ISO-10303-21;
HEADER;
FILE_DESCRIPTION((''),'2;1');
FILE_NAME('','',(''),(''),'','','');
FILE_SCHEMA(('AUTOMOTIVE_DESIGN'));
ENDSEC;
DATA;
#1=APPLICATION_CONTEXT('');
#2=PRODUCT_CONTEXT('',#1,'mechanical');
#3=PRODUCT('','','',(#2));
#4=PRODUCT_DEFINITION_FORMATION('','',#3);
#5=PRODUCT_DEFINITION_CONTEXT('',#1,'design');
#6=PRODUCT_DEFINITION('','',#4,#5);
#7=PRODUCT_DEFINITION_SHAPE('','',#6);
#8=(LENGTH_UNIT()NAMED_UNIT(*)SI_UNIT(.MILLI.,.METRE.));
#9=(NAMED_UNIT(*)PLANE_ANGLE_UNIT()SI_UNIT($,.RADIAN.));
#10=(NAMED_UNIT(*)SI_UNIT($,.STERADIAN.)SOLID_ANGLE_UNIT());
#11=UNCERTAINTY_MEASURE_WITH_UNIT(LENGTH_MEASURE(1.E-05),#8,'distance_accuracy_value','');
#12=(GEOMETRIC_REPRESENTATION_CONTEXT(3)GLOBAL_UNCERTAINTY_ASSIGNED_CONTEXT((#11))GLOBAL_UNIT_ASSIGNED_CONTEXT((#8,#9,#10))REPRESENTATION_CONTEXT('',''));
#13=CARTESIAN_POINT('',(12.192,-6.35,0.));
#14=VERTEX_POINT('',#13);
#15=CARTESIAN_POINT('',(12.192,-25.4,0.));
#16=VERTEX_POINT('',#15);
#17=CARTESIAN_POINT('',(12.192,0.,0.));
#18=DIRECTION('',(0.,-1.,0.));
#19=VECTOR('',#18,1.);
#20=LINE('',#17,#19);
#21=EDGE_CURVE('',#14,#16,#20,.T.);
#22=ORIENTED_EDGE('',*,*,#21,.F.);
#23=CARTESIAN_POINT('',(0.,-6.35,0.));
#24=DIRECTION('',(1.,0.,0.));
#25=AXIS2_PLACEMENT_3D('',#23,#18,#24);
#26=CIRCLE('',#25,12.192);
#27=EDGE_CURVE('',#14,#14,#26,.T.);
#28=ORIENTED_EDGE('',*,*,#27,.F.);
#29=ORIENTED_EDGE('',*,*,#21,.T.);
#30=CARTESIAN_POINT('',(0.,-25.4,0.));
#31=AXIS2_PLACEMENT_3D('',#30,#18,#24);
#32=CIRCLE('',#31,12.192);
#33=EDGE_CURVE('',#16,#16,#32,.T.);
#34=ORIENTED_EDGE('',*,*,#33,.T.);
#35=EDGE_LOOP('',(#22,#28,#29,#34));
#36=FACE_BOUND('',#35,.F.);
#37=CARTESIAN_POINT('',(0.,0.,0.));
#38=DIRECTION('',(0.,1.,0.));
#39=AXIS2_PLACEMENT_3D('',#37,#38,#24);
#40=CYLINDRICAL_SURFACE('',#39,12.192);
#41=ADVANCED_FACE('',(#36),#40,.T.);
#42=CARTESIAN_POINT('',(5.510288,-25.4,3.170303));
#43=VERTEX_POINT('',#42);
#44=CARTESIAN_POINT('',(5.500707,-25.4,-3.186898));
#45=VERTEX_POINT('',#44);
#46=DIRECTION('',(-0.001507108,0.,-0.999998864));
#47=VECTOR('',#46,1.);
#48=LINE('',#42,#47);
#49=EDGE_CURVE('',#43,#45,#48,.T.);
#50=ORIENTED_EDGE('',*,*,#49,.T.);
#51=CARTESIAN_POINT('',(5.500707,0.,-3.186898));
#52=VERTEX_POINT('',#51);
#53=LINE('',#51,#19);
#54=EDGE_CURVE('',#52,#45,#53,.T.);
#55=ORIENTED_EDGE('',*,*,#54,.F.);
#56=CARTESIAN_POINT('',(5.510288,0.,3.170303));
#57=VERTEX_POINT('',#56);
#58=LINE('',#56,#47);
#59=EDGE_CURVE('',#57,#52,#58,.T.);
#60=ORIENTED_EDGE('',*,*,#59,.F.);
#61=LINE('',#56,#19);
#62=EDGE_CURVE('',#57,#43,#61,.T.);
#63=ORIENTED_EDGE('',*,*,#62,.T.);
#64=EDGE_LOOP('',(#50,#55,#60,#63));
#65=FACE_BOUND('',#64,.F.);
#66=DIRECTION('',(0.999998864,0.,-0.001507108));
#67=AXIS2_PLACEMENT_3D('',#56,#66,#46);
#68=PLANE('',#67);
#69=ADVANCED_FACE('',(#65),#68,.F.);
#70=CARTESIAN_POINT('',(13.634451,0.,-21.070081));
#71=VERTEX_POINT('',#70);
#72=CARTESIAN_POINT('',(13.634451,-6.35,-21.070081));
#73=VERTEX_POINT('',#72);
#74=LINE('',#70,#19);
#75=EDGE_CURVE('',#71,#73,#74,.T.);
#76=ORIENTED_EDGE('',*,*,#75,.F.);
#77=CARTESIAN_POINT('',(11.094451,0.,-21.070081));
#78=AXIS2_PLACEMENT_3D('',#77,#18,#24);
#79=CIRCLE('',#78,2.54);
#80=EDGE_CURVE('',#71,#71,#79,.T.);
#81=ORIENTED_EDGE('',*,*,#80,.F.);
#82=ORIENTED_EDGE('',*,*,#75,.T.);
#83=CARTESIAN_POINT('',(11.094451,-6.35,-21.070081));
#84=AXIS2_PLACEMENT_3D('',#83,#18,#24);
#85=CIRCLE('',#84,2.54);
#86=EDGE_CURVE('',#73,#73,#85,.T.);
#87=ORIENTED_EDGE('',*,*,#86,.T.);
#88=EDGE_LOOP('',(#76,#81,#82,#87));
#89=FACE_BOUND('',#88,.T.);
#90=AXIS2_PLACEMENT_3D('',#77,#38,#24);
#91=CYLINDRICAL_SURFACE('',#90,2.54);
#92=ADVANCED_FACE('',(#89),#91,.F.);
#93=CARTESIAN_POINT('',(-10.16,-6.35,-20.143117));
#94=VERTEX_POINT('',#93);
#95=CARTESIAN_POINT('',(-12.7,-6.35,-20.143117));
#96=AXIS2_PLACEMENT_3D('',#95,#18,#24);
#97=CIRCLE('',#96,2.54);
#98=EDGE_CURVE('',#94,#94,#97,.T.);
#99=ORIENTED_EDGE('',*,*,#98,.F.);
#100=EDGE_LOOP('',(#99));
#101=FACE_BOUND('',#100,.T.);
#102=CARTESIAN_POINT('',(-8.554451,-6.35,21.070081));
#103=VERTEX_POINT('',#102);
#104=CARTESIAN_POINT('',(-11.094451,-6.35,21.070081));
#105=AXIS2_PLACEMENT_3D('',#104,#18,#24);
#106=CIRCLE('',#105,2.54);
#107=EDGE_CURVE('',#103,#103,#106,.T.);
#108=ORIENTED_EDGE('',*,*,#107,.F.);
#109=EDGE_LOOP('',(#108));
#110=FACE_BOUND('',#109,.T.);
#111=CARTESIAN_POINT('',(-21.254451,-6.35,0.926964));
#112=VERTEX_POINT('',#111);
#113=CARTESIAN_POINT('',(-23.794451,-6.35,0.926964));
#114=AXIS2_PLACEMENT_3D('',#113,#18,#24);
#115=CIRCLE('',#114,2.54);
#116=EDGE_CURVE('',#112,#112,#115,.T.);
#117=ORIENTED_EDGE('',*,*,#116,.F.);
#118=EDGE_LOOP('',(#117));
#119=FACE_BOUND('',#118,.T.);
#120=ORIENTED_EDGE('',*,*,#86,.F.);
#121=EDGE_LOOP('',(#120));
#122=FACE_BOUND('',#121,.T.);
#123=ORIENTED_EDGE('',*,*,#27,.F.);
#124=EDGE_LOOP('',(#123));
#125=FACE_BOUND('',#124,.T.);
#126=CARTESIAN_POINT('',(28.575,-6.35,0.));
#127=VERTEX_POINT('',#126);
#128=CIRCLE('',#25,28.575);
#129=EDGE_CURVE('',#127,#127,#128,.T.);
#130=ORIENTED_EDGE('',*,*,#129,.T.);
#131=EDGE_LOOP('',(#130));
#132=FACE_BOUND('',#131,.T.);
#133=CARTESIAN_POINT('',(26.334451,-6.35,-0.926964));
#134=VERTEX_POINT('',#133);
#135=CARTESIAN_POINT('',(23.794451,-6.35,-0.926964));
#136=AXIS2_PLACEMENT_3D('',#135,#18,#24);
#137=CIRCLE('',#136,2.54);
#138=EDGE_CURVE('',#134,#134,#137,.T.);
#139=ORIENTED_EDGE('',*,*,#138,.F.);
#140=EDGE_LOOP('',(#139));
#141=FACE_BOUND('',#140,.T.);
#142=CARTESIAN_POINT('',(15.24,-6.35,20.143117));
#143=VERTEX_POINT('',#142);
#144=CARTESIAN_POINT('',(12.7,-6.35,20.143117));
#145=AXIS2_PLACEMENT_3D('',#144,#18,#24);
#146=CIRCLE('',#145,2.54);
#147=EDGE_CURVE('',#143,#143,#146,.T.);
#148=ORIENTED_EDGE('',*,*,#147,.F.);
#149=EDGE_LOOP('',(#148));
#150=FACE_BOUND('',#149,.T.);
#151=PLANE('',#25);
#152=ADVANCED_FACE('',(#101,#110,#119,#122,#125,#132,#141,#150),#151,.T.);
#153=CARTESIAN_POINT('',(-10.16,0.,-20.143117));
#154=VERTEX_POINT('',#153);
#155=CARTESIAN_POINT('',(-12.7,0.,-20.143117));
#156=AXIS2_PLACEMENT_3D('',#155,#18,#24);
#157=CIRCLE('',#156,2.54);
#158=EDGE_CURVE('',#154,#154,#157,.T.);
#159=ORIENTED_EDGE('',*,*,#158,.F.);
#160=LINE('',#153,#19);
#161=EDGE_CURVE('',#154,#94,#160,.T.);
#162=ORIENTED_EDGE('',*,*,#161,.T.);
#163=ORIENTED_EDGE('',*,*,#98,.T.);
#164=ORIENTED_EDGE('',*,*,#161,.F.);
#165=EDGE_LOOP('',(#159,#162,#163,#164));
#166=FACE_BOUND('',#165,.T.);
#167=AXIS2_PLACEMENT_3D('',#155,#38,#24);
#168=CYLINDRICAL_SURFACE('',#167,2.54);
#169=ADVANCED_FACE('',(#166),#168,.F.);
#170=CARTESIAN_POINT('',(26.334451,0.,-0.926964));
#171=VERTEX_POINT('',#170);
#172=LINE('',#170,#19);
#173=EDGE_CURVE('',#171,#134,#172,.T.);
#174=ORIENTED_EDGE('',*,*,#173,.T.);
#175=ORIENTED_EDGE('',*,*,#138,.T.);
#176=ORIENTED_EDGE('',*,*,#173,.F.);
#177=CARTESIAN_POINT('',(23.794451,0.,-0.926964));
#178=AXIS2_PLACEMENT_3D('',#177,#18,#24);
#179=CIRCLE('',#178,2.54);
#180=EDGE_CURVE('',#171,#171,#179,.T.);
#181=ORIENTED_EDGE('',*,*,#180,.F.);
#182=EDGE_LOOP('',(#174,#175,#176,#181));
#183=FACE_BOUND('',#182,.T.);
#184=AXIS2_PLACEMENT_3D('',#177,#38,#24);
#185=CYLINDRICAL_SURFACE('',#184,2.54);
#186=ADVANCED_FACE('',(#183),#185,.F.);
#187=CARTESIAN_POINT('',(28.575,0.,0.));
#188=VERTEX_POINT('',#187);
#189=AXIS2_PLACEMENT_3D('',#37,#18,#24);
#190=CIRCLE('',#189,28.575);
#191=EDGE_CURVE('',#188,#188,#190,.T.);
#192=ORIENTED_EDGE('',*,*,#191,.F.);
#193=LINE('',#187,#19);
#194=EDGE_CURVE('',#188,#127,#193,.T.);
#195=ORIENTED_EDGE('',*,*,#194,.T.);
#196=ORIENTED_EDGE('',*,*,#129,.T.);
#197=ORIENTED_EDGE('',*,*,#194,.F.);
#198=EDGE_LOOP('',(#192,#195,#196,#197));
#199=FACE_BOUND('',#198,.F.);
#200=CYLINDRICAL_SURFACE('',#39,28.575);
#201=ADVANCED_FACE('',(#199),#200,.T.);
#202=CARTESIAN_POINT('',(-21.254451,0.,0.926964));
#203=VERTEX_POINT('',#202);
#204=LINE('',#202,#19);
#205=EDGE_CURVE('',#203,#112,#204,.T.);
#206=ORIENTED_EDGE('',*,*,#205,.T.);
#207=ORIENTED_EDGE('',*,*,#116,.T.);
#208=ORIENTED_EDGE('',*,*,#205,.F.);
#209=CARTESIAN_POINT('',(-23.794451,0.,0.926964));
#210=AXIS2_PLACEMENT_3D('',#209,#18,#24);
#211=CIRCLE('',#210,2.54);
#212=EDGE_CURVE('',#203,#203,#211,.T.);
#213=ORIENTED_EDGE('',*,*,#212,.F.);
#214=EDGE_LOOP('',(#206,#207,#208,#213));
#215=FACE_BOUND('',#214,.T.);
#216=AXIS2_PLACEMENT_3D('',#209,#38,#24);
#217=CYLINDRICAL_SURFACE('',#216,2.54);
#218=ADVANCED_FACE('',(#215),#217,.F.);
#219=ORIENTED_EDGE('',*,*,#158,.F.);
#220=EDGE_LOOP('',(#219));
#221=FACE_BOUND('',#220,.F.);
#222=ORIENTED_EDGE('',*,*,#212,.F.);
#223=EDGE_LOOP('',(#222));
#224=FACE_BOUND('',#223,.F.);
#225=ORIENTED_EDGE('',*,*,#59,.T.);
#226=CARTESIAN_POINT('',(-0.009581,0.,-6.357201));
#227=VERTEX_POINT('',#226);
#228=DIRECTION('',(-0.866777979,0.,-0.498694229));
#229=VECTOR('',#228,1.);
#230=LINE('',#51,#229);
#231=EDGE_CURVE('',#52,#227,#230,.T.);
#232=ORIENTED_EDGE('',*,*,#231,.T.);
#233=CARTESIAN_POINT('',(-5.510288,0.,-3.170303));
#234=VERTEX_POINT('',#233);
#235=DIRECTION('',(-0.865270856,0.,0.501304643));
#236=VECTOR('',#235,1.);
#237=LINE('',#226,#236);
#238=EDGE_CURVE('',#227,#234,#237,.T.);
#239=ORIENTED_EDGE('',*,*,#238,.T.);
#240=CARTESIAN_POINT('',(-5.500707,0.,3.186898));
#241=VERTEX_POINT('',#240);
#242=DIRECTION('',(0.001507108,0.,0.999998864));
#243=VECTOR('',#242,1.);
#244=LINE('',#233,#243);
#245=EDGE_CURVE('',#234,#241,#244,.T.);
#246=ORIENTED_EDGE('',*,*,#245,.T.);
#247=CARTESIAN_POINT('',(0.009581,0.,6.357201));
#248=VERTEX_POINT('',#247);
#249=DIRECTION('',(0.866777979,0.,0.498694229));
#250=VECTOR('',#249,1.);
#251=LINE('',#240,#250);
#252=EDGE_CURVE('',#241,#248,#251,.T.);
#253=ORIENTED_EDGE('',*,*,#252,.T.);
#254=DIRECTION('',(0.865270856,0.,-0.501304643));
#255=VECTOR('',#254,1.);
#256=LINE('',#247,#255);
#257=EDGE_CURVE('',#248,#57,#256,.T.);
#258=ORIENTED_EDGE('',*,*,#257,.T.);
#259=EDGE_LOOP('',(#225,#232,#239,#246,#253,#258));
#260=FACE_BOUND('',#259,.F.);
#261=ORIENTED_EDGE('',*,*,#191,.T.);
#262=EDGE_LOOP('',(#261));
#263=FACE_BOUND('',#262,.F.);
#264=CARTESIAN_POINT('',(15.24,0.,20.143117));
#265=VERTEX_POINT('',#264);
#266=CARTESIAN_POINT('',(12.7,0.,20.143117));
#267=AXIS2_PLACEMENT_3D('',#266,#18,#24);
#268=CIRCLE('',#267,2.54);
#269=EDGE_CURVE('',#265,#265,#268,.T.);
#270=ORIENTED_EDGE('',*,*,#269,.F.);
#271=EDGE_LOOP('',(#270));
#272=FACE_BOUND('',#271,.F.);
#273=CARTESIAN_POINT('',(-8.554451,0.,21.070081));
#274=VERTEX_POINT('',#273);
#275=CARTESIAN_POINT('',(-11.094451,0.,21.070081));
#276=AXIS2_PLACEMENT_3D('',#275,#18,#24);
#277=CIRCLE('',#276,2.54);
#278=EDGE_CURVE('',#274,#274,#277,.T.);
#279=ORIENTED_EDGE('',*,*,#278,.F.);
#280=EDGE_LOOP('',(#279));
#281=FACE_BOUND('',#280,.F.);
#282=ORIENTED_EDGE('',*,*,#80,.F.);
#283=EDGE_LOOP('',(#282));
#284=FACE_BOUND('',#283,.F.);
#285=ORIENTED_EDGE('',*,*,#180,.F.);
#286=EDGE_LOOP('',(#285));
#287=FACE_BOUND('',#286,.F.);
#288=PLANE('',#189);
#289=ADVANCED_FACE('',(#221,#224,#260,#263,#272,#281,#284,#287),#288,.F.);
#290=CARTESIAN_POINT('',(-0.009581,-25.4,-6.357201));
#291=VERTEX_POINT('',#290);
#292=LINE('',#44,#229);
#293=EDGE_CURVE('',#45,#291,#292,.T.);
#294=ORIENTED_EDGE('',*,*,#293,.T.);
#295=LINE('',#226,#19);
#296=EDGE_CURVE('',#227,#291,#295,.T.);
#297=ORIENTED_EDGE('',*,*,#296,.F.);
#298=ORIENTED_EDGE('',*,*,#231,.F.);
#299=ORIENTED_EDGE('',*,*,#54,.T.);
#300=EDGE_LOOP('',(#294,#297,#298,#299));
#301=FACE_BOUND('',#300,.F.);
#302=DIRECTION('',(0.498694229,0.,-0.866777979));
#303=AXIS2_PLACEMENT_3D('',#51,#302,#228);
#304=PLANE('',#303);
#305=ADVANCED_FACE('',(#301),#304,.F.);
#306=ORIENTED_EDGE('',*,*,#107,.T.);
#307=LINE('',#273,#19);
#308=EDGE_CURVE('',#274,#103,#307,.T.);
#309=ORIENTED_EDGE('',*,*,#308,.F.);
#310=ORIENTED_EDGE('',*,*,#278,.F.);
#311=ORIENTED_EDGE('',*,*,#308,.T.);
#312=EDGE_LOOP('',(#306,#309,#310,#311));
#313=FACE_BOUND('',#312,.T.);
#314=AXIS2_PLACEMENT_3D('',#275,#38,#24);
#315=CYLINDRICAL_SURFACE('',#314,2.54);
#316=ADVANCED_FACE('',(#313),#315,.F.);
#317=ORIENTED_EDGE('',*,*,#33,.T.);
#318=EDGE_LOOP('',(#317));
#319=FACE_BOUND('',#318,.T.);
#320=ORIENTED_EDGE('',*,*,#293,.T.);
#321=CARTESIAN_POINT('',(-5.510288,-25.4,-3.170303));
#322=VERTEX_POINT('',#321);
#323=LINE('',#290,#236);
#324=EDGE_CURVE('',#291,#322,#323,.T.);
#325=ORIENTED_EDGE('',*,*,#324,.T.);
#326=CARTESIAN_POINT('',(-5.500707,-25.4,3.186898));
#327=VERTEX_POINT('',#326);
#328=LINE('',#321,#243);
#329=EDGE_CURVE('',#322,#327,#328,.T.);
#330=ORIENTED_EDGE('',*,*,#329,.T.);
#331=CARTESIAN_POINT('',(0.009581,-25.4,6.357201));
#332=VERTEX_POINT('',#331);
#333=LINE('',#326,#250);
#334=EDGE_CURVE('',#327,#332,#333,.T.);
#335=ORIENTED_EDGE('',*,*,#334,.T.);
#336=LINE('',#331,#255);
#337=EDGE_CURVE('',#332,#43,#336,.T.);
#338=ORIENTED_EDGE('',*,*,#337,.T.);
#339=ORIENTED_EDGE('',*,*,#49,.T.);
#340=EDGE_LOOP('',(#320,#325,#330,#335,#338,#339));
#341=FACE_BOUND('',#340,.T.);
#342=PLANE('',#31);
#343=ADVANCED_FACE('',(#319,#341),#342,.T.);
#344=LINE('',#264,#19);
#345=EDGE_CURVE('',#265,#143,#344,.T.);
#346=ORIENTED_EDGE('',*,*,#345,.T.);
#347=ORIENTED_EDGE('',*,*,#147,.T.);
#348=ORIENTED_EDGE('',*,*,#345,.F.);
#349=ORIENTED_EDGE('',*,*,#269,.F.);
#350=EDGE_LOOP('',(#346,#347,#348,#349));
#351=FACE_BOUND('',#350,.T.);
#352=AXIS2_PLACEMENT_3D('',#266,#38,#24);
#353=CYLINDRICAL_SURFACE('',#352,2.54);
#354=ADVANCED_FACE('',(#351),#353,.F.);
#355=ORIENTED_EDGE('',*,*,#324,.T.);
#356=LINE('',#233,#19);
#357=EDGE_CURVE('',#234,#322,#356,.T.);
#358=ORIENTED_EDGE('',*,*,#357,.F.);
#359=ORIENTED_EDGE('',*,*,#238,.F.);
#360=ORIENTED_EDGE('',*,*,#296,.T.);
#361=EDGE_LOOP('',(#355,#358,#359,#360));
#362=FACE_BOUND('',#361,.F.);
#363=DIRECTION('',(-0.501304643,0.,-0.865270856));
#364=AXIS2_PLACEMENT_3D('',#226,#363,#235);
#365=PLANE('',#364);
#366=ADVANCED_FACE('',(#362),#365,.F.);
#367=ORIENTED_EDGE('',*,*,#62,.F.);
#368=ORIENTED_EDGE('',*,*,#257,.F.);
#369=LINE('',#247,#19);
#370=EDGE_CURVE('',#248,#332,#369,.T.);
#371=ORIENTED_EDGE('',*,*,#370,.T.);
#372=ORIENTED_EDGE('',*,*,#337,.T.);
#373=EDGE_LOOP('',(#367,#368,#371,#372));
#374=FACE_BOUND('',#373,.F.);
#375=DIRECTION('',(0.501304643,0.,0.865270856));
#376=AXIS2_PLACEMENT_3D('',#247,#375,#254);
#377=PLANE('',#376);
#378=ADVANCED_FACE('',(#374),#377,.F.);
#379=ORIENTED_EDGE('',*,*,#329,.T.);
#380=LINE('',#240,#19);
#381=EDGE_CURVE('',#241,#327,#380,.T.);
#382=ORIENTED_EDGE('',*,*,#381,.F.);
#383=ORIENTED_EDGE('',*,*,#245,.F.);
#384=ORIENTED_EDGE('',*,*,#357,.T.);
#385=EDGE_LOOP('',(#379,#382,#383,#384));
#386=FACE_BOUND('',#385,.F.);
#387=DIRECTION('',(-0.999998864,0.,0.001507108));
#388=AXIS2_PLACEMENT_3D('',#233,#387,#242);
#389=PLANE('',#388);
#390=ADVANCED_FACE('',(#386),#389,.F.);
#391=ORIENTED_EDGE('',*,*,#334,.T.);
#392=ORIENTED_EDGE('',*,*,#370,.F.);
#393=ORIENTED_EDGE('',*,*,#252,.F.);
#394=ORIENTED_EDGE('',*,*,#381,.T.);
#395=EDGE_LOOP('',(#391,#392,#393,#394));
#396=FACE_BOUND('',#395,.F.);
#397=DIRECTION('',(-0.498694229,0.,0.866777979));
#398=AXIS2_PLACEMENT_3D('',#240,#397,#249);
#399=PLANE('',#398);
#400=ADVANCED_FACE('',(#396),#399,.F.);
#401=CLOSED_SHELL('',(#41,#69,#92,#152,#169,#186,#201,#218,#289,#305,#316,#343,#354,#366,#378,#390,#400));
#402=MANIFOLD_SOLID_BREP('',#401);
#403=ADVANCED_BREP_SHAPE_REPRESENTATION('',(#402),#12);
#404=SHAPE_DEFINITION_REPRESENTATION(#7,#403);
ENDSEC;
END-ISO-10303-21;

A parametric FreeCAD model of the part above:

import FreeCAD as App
import Part
import Sketcher

V = App.Vector
Q = App.Units.Quantity

doc = App.newDocument("Part")
body = doc.addObject("PartDesign::Body", "Body")

# Sketch on XZ plane
sketch1 = doc.addObject("Sketcher::SketchObject", "Sketch")
body.addObject(sketch1)
sketch1.AttachmentSupport = (doc.XZ_Plane, [""])
sketch1.MapMode = "FlatFace"
sketch1.addGeometry(Part.Circle(V(0, 0, 0), V(0, 0, 1), 28.6), False)
sketch1.addGeometry(Part.Circle(V(-12.7, -20.1, 0), V(0, 0, 1), 2.5), False)
sketch1.addGeometry(Part.Circle(V(11.1, -21.1, 0), V(0, 0, 1), 2.5), False)
sketch1.addGeometry(Part.Circle(V(23.8, -0.9, 0), V(0, 0, 1), 2.5), False)
sketch1.addGeometry(Part.Circle(V(-23.8, 0.9, 0), V(0, 0, 1), 2.5), False)
sketch1.addGeometry(Part.Circle(V(-11.1, 21.1, 0), V(0, 0, 1), 2.5), False)
sketch1.addGeometry(Part.Circle(V(0, 0, 0), V(0, 0, 1), 12.2), False)
sketch1.addGeometry(Part.Circle(V(12.7, 20.1, 0), V(0, 0, 1), 2.5), False)
sketch1.addConstraint(Sketcher.Constraint("Coincident", 0, 3, -1, 1))
sketch1.addConstraint(Sketcher.Constraint("Coincident", 6, 3, -1, 1))
sketch1.addConstraint(Sketcher.Constraint("Equal", 1, 2))
sketch1.addConstraint(Sketcher.Constraint("Equal", 2, 3))
sketch1.addConstraint(Sketcher.Constraint("Equal", 3, 4))
sketch1.addConstraint(Sketcher.Constraint("Equal", 4, 5))
sketch1.addConstraint(Sketcher.Constraint("Equal", 5, 7))
sketch1.addConstraint(Sketcher.Constraint("Symmetric", 3, 3, 4, 3, -1, 1))
sketch1.addConstraint(Sketcher.Constraint("Symmetric", 2, 3, 5, 3, -1, 1))
sketch1.addConstraint(Sketcher.Constraint("Symmetric", 1, 3, 7, 3, -1, 1))
sketch1.addConstraint(Sketcher.Constraint("Diameter", 1, Q("0.2 in")))
sketch1.addConstraint(Sketcher.Constraint("Diameter", 0, Q("2.25 in")))
sketch1.addConstraint(Sketcher.Constraint("Diameter", 6, Q("0.96 in")))
sketch1.addConstraint(Sketcher.Constraint("DistanceX", 1, 3, -1, 1, Q("0.5 in")))
sketch1.addConstraint(Sketcher.Constraint("DistanceX", 2, 3, 3, 3, Q("0.5 in")))
sketch1.addConstraint(Sketcher.Constraint("DistanceX", 4, 3, 3, 3, Q("47.588902 mm")))
sketch1.addConstraint(Sketcher.Constraint("DistanceY", 2, 3, -1, 1, Q("21.070081 mm")))
sketch1.addConstraint(Sketcher.Constraint("DistanceY", 1, 3, 4, 3, Q("21.070081 mm")))
sketch1.addConstraint(Sketcher.Constraint("DistanceY", 1, 3, -1, 1, Q("20.143117 mm")))
pad1 = doc.addObject("PartDesign::Pad", "Pad")
body.addObject(pad1)
pad1.Profile = sketch1
pad1.Length = Q("0.25 in")

# Sketch on XZ plane
sketch2 = doc.addObject("Sketcher::SketchObject", "Sketch001")
body.addObject(sketch2)
sketch2.AttachmentSupport = (doc.XZ_Plane, [""])
sketch2.MapMode = "FlatFace"
sketch2.addGeometry(Part.Circle(V(0, 0, 0), V(0, 0, 1), 12), False)
sketch2.addGeometry(Part.LineSegment(V(-6, -3, 0), V(-6, 3, 0)), False)
sketch2.addGeometry(Part.LineSegment(V(-6, 3, 0), V(0, 6, 0)), False)
sketch2.addGeometry(Part.LineSegment(V(0, 6, 0), V(6, 3, 0)), False)
sketch2.addGeometry(Part.LineSegment(V(6, 3, 0), V(6, -3, 0)), False)
sketch2.addGeometry(Part.LineSegment(V(6, -3, 0), V(0, -6, 0)), False)
sketch2.addGeometry(Part.LineSegment(V(0, -6, 0), V(-6, -3, 0)), False)
sketch2.addConstraint(Sketcher.Constraint("Coincident", 1, 2, 2, 1))
sketch2.addConstraint(Sketcher.Constraint("Coincident", 2, 2, 3, 1))
sketch2.addConstraint(Sketcher.Constraint("Coincident", 3, 2, 4, 1))
sketch2.addConstraint(Sketcher.Constraint("Coincident", 4, 2, 5, 1))
sketch2.addConstraint(Sketcher.Constraint("Coincident", 5, 2, 6, 1))
sketch2.addConstraint(Sketcher.Constraint("Coincident", 6, 2, 1, 1))
sketch2.addConstraint(Sketcher.Constraint("Coincident", 0, 3, -1, 1))
sketch2.addConstraint(Sketcher.Constraint("Symmetric", 1, 2, 4, 2, -1, 1))
sketch2.addConstraint(Sketcher.Constraint("Symmetric", 2, 2, 5, 2, -1, 1))
sketch2.addConstraint(Sketcher.Constraint("Symmetric", 3, 2, 6, 2, -1, 1))
sketch2.addConstraint(Sketcher.Constraint("Equal", 1, 2))
sketch2.addConstraint(Sketcher.Constraint("Equal", 2, 3))
sketch2.addConstraint(Sketcher.Constraint("Diameter", 0, Q("0.96 in")))
sketch2.addConstraint(Sketcher.Constraint("DistanceY", -1, 1, 2, 2, Q("6.357201 mm")))
sketch2.addConstraint(Sketcher.Constraint("DistanceY", 4, 2, 3, 2, Q("6.357201 mm")))
sketch2.addConstraint(Sketcher.Constraint("DistanceY", 4, 2, 2, 2, Q("9.544099 mm")))
sketch2.addConstraint(Sketcher.Constraint("DistanceX", -1, 1, 2, 2, Q("0.009581 mm")))
pad2 = doc.addObject("PartDesign::Pad", "Pad001")
body.addObject(pad2)
pad2.Profile = sketch2
pad2.Length = Q("1 in")

doc.recompute()
